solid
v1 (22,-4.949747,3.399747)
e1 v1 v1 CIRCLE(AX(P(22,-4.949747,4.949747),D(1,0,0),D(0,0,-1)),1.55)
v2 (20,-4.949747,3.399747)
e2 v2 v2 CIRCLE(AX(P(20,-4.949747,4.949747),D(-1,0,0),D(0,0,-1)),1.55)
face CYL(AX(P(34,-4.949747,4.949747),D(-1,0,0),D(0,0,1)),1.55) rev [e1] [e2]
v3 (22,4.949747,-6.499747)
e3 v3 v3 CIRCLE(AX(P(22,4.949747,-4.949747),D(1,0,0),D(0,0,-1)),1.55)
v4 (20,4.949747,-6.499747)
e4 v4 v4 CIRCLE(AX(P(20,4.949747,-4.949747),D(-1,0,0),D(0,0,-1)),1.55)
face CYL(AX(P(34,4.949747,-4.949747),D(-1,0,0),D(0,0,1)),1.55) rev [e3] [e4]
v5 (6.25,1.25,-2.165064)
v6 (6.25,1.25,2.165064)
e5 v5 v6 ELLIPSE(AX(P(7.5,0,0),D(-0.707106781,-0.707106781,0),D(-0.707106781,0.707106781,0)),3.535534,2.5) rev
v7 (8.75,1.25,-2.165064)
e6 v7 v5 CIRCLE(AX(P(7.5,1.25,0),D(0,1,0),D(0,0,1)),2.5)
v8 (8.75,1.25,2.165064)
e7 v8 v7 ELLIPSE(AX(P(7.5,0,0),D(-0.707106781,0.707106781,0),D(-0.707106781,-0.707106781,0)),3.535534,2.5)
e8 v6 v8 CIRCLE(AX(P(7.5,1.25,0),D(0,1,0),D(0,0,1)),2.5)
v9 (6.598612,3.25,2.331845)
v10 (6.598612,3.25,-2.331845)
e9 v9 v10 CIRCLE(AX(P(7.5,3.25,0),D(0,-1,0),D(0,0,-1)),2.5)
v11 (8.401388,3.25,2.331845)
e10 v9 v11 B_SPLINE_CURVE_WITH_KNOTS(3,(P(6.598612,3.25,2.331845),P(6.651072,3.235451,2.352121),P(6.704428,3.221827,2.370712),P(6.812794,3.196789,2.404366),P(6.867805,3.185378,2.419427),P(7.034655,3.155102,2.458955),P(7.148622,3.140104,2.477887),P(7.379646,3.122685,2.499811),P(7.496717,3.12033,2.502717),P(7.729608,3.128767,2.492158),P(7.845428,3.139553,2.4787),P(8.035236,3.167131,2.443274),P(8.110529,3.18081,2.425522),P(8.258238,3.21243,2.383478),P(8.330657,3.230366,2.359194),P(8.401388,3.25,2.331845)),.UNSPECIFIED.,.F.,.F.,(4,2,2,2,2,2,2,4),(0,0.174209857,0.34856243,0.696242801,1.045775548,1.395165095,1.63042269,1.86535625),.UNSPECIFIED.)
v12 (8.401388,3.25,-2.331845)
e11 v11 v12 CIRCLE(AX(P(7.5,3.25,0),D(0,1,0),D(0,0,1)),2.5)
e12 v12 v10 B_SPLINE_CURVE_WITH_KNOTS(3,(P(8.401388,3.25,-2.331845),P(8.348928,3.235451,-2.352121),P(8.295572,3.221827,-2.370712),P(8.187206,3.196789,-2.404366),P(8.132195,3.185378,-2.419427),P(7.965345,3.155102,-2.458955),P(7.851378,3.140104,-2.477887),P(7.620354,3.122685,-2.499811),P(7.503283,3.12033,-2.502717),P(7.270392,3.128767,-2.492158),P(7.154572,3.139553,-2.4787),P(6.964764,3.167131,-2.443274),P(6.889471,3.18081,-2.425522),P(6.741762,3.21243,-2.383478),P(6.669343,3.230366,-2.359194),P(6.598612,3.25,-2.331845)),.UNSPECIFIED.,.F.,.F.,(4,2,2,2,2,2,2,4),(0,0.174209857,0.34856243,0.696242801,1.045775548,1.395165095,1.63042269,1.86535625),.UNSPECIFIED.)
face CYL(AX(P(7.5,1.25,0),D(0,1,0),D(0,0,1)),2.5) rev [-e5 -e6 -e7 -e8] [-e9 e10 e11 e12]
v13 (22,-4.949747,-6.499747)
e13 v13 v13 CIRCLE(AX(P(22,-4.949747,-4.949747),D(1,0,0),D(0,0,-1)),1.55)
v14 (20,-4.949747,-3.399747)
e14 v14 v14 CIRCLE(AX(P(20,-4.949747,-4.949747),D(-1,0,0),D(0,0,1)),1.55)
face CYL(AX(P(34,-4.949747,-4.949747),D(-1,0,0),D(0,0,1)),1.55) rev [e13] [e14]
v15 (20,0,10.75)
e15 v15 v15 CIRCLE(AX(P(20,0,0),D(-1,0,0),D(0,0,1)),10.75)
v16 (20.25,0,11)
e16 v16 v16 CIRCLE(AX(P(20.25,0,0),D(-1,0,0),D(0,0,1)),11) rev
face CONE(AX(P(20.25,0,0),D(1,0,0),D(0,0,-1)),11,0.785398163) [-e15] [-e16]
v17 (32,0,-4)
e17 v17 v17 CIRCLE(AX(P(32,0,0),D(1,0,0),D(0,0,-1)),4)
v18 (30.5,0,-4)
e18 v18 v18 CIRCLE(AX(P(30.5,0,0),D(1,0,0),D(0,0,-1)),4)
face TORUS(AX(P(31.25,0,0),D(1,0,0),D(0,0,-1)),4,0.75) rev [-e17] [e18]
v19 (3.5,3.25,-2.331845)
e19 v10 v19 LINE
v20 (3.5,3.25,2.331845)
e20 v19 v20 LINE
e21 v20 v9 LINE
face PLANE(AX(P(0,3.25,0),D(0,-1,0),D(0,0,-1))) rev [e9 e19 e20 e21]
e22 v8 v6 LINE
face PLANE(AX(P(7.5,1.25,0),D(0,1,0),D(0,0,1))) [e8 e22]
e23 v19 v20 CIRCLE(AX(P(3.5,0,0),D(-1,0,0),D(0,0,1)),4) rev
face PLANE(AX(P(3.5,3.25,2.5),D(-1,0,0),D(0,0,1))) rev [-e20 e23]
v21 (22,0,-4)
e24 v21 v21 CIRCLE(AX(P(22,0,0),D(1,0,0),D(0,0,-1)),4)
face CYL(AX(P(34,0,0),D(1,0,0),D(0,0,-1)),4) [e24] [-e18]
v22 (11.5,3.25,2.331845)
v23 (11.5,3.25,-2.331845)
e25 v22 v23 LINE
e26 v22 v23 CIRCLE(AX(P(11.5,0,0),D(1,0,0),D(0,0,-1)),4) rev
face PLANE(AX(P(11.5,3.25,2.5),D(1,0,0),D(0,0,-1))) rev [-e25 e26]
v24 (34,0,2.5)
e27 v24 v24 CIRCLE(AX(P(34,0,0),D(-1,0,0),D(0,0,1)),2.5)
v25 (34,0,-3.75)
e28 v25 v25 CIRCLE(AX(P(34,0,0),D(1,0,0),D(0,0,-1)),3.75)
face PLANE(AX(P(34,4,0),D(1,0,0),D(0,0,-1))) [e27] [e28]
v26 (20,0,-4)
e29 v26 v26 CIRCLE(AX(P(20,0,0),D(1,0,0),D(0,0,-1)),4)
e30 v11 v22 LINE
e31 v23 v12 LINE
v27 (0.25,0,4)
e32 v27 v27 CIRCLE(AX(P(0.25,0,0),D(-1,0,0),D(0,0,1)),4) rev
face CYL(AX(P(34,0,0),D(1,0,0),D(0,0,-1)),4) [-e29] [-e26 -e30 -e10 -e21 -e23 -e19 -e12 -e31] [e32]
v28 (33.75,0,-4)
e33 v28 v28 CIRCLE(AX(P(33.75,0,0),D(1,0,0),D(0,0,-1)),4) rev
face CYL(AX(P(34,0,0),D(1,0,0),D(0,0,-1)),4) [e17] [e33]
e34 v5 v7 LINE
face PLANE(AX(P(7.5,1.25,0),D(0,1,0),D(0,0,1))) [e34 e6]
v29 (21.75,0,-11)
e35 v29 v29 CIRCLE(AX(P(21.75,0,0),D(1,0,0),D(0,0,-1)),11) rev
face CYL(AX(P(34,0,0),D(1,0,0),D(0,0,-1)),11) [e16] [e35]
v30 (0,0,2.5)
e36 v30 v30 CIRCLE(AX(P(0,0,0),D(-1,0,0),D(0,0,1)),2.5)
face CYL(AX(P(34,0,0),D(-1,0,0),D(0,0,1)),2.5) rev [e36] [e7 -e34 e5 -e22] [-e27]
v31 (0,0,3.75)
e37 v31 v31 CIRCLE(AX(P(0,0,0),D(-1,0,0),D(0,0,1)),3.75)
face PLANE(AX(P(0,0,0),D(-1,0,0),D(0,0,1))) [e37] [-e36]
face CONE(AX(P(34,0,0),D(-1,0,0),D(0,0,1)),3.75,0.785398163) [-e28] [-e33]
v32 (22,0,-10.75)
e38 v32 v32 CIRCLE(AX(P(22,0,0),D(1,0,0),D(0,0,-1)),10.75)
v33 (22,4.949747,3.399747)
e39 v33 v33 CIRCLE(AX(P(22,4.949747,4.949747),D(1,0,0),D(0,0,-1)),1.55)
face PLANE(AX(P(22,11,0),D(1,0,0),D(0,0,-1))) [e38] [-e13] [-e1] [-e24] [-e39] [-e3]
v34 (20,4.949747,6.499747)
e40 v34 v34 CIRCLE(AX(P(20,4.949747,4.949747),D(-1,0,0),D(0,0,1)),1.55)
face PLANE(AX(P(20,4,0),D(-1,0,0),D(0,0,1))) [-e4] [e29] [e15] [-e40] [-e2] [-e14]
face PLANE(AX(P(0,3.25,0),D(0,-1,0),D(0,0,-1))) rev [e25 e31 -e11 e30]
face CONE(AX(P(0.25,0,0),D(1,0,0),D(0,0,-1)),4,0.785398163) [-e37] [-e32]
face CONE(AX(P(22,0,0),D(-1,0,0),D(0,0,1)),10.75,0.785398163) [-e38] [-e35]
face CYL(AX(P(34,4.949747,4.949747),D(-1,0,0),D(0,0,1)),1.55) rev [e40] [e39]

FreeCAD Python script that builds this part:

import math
import FreeCAD as App
import Part
import Sketcher


def edges_at(feature, points):
    """Names of the edges that pass closest to the given points."""
    edges = feature.Shape.Edges
    near = lambda p: min(range(len(edges)), key=lambda i: edges[i].distToShape(Part.Vertex(*p))[0])
    return sorted({f"Edge{near(p) + 1}" for p in points})

doc = App.newDocument("Part")
body = doc.addObject("PartDesign::Body", "Body")

# Sketch on XY plane
sketch1 = doc.addObject("Sketcher::SketchObject", "Sketch")
body.addObject(sketch1)
sketch1.AttachmentSupport = (doc.XY_Plane, [""])
sketch1.MapMode = "FlatFace"
sketch1.addGeometry(Part.LineSegment(App.Vector(0, 4, 0), App.Vector(0, 0, 0)), False)
sketch1.addGeometry(Part.LineSegment(App.Vector(0, 0, 0), App.Vector(34, 0, 0)), False)
sketch1.addGeometry(Part.LineSegment(App.Vector(34, 0, 0), App.Vector(34, 4, 0)), False)
sketch1.addGeometry(Part.LineSegment(App.Vector(34, 4, 0), App.Vector(32, 4, 0)), False)
sketch1.addGeometry(Part.ArcOfCircle(Part.Circle(App.Vector(31.25, 4, 0), App.Vector(0, 0, 1), 0.75), math.radians(180), math.radians(360)), False)
sketch1.addGeometry(Part.LineSegment(App.Vector(30.5, 4, 0), App.Vector(22, 4, 0)), False)
sketch1.addGeometry(Part.LineSegment(App.Vector(22, 4, 0), App.Vector(22, 11, 0)), False)
sketch1.addGeometry(Part.LineSegment(App.Vector(22, 11, 0), App.Vector(20, 11, 0)), False)
sketch1.addGeometry(Part.LineSegment(App.Vector(20, 11, 0), App.Vector(20, 4, 0)), False)
sketch1.addGeometry(Part.LineSegment(App.Vector(20, 4, 0), App.Vector(0, 4, 0)), False)
sketch1.addConstraint(Sketcher.Constraint("Coincident", 0, 2, 1, 1))
sketch1.addConstraint(Sketcher.Constraint("Coincident", 1, 2, 2, 1))
sketch1.addConstraint(Sketcher.Constraint("Coincident", 2, 2, 3, 1))
sketch1.addConstraint(Sketcher.Constraint("Coincident", 3, 2, 4, 2))
sketch1.addConstraint(Sketcher.Constraint("Coincident", 4, 1, 5, 1))
sketch1.addConstraint(Sketcher.Constraint("Coincident", 5, 2, 6, 1))
sketch1.addConstraint(Sketcher.Constraint("Coincident", 6, 2, 7, 1))
sketch1.addConstraint(Sketcher.Constraint("Coincident", 7, 2, 8, 1))
sketch1.addConstraint(Sketcher.Constraint("Coincident", 8, 2, 9, 1))
sketch1.addConstraint(Sketcher.Constraint("Coincident", 9, 2, 0, 1))
sketch1.addConstraint(Sketcher.Constraint("Vertical", 0))
sketch1.addConstraint(Sketcher.Constraint("Horizontal", 1))
sketch1.addConstraint(Sketcher.Constraint("Vertical", 2))
sketch1.addConstraint(Sketcher.Constraint("Horizontal", 3))
sketch1.addConstraint(Sketcher.Constraint("Horizontal", 5))
sketch1.addConstraint(Sketcher.Constraint("Vertical", 6))
sketch1.addConstraint(Sketcher.Constraint("Horizontal", 7))
sketch1.addConstraint(Sketcher.Constraint("Vertical", 8))
sketch1.addConstraint(Sketcher.Constraint("Horizontal", 9))
sketch1.addConstraint(Sketcher.Constraint("Coincident", 0, 2, -1, 1))
sketch1.addConstraint(Sketcher.Constraint("Horizontal", 4, 3, 2, 2))
sketch1.addConstraint(Sketcher.Constraint("Horizontal", 3, 2, 4, 1))
sketch1.addConstraint(Sketcher.Constraint("Horizontal", 5, 2, 8, 2))
sketch1.addConstraint(Sketcher.Constraint("Equal", 3, 7))
sketch1.addConstraint(Sketcher.Constraint("DistanceX", 1, 1, 1, 2, 34.0))
sketch1.addConstraint(Sketcher.Constraint("DistanceX", 3, 2, 3, 1, 2.0))
sketch1.addConstraint(Sketcher.Constraint("DistanceX", 9, 2, 9, 1, 20.0))
sketch1.addConstraint(Sketcher.Constraint("DistanceY", 0, 2, 0, 1, 4.0))
sketch1.addConstraint(Sketcher.Constraint("DistanceY", 6, 1, 6, 2, 7.0))
sketch1.addConstraint(Sketcher.Constraint("Radius", 4, 0.75))
revolution = doc.addObject("PartDesign::Revolution", "Revolution")
body.addObject(revolution)
revolution.Profile = sketch1
revolution.ReferenceAxis = (sketch1, ["H_Axis"])
revolution.Angle = 360

# Sketch on YZ plane
sketch2 = doc.addObject("Sketcher::SketchObject", "Sketch001")
body.addObject(sketch2)
sketch2.AttachmentSupport = (doc.YZ_Plane, [""])
sketch2.MapMode = "FlatFace"
sketch2.AttachmentOffset = App.Placement(App.Vector(0, 0, 20), App.Rotation())
sketch2.addGeometry(Part.Circle(App.Vector(4.949747, 4.949747, 0), App.Vector(0, 0, 1), 1.55), False)
sketch2.addGeometry(Part.Circle(App.Vector(4.949747, -4.949747, 0), App.Vector(0, 0, 1), 1.55), False)
sketch2.addGeometry(Part.Circle(App.Vector(-4.949747, 4.949747, 0), App.Vector(0, 0, 1), 1.55), False)
sketch2.addGeometry(Part.Circle(App.Vector(-4.949747, -4.949747, 0), App.Vector(0, 0, 1), 1.55), False)
sketch2.addConstraint(Sketcher.Constraint("Equal", 0, 1))
sketch2.addConstraint(Sketcher.Constraint("Equal", 1, 2))
sketch2.addConstraint(Sketcher.Constraint("Equal", 2, 3))
sketch2.addConstraint(Sketcher.Constraint("Symmetric", 1, 3, 2, 3, -1, 1))
sketch2.addConstraint(Sketcher.Constraint("Symmetric", 0, 3, 3, 3, -1, 1))
sketch2.addConstraint(Sketcher.Constraint("Symmetric", 0, 3, 2, 3, -2))
sketch2.addConstraint(Sketcher.Constraint("Diameter", 0, 3.1))
sketch2.addConstraint(Sketcher.Constraint("DistanceX", -1, 1, 0, 3, 4.949747))
sketch2.addConstraint(Sketcher.Constraint("DistanceY", -1, 1, 0, 3, 4.949747))
pocket1 = doc.addObject("PartDesign::Pocket", "Pocket")
body.addObject(pocket1)
pocket1.Profile = sketch2
pocket1.Type = "ThroughAll"
pocket1.Reversed = True

# Sketch on YZ plane
sketch3 = doc.addObject("Sketcher::SketchObject", "Sketch002")
body.addObject(sketch3)
sketch3.AttachmentSupport = (doc.YZ_Plane, [""])
sketch3.MapMode = "FlatFace"
sketch3.addGeometry(Part.Circle(App.Vector(0, 0, 0), App.Vector(0, 0, 1), 2.5), False)
sketch3.addConstraint(Sketcher.Constraint("Coincident", 0, 3, -1, 1))
sketch3.addConstraint(Sketcher.Constraint("Diameter", 0, 5.0))
pocket2 = doc.addObject("PartDesign::Pocket", "Pocket001")
body.addObject(pocket2)
pocket2.Profile = sketch3
pocket2.Type = "ThroughAll"
pocket2.Reversed = True

# Sketch on XZ plane
sketch4 = doc.addObject("Sketcher::SketchObject", "Sketch003")
body.addObject(sketch4)
sketch4.AttachmentSupport = (doc.XZ_Plane, [""])
sketch4.MapMode = "FlatFace"
sketch4.AttachmentOffset = App.Placement(App.Vector(0, 0, -4), App.Rotation())
sketch4.addGeometry(Part.LineSegment(App.Vector(3.5, -2.5, 0), App.Vector(3.5, 2.5, 0)), False)
sketch4.addGeometry(Part.LineSegment(App.Vector(3.5, 2.5, 0), App.Vector(11.5, 2.5, 0)), False)
sketch4.addGeometry(Part.LineSegment(App.Vector(11.5, 2.5, 0), App.Vector(11.5, -2.5, 0)), False)
sketch4.addGeometry(Part.LineSegment(App.Vector(11.5, -2.5, 0), App.Vector(3.5, -2.5, 0)), False)
sketch4.addConstraint(Sketcher.Constraint("Coincident", 0, 2, 1, 1))
sketch4.addConstraint(Sketcher.Constraint("Coincident", 1, 2, 2, 1))
sketch4.addConstraint(Sketcher.Constraint("Coincident", 2, 2, 3, 1))
sketch4.addConstraint(Sketcher.Constraint("Coincident", 3, 2, 0, 1))
sketch4.addConstraint(Sketcher.Constraint("Vertical", 0))
sketch4.addConstraint(Sketcher.Constraint("Horizontal", 1))
sketch4.addConstraint(Sketcher.Constraint("Vertical", 2))
sketch4.addConstraint(Sketcher.Constraint("Horizontal", 3))
sketch4.addConstraint(Sketcher.Constraint("DistanceX", 1, 1, 1, 2, 8.0))
sketch4.addConstraint(Sketcher.Constraint("DistanceY", 0, 1, 0, 2, 5.0))
sketch4.addConstraint(Sketcher.Constraint("DistanceX", -1, 1, 0, 2, 3.5))
sketch4.addConstraint(Sketcher.Constraint("DistanceY", -1, 1, 0, 2, 2.5))
pocket3 = doc.addObject("PartDesign::Pocket", "Pocket002")
body.addObject(pocket3)
pocket3.Profile = sketch4
pocket3.Length = 0.75
pocket3.Reversed = True

# Sketch on XZ plane
sketch5 = doc.addObject("Sketcher::SketchObject", "Sketch004")
body.addObject(sketch5)
sketch5.AttachmentSupport = (doc.XZ_Plane, [""])
sketch5.MapMode = "FlatFace"
sketch5.AttachmentOffset = App.Placement(App.Vector(0, 0, -3.25), App.Rotation())
sketch5.addGeometry(Part.Circle(App.Vector(7.5, 0, 0), App.Vector(0, 0, 1), 2.5), False)
sketch5.addConstraint(Sketcher.Constraint("PointOnObject", 0, 3, -1))
sketch5.addConstraint(Sketcher.Constraint("Diameter", 0, 5.0))
sketch5.addConstraint(Sketcher.Constraint("DistanceX", -1, 1, 0, 3, 7.5))
pocket4 = doc.addObject("PartDesign::Pocket", "Pocket003")
body.addObject(pocket4)
pocket4.Profile = sketch5
pocket4.Length = 2
pocket4.Reversed = True
doc.recompute()

chamfer = doc.addObject("PartDesign::Chamfer", "Chamfer")
body.addObject(chamfer)
chamfer.Base = (pocket4, edges_at(pocket4, [
    (34, 0, 4),
    (0, 0, 4),
    (20, 0, 11),
    (22, 0, 11),
]))
chamfer.Size = 0.25

doc.recompute()
